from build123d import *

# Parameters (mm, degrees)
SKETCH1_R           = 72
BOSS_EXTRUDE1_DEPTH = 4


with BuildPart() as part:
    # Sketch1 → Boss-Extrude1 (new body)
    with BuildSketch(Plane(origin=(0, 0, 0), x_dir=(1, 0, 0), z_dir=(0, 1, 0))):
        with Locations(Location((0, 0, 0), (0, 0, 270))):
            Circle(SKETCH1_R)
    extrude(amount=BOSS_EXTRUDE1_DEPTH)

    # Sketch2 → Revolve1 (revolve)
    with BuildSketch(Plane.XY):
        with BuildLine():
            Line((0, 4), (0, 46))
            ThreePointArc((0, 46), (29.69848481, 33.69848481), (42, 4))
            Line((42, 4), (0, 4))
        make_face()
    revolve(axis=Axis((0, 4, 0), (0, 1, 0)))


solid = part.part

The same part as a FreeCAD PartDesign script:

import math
import FreeCAD as App
import Part
import Sketcher

V = App.Vector

doc = App.newDocument("Part")
body = doc.addObject("PartDesign::Body", "Body")

sketch1 = body.newObject("Sketcher::SketchObject", "Sketch")
sketch1.AttachmentSupport = (doc.getObject("XZ_Plane"), [""])
sketch1.MapMode = "FlatFace"
sketch1.addGeometry(Part.Circle(V(0, 0, 0), V(0, 0, 1), 72), False)
sketch1.addConstraint([
    Sketcher.Constraint("Coincident", 0, 3, -1, 1),
    Sketcher.Constraint("Diameter", 0, 144.0),
])
pad1 = body.newObject("PartDesign::Pad", "Pad")
pad1.Profile = sketch1
pad1.Length = 4
pad1.Reversed = True

sketch2 = body.newObject("Sketcher::SketchObject", "Sketch001")
sketch2.AttachmentSupport = (doc.getObject("XY_Plane"), [""])
sketch2.MapMode = "FlatFace"
sketch2.addGeometry([
    Part.LineSegment(V(0, 46, 0), V(0, 4, 0)),
    Part.LineSegment(V(0, 4, 0), V(42, 4, 0)),
    Part.ArcOfCircle(Part.Circle(V(0, 4, 0), V(0, 0, 1), 42), math.radians(0), math.radians(90)),
], False)
sketch2.addConstraint([
    Sketcher.Constraint("Coincident", 0, 2, 1, 1),
    Sketcher.Constraint("Coincident", 1, 2, 2, 1),
    Sketcher.Constraint("Coincident", 2, 2, 0, 1),
    Sketcher.Constraint("Vertical", 0),
    Sketcher.Constraint("Horizontal", 1),
    Sketcher.Constraint("Coincident", 0, 2, 2, 3),
    Sketcher.Constraint("PointOnObject", 2, 3, -2),
    Sketcher.Constraint("Radius", 2, 42.0),
    Sketcher.Constraint("DistanceY", -1, 1, 2, 3, 4.0),
])
revolution = body.newObject("PartDesign::Revolution", "Revolution")
revolution.Profile = sketch2
revolution.ReferenceAxis = (sketch2, ["V_Axis"])
revolution.Angle = 360

doc.recompute()
